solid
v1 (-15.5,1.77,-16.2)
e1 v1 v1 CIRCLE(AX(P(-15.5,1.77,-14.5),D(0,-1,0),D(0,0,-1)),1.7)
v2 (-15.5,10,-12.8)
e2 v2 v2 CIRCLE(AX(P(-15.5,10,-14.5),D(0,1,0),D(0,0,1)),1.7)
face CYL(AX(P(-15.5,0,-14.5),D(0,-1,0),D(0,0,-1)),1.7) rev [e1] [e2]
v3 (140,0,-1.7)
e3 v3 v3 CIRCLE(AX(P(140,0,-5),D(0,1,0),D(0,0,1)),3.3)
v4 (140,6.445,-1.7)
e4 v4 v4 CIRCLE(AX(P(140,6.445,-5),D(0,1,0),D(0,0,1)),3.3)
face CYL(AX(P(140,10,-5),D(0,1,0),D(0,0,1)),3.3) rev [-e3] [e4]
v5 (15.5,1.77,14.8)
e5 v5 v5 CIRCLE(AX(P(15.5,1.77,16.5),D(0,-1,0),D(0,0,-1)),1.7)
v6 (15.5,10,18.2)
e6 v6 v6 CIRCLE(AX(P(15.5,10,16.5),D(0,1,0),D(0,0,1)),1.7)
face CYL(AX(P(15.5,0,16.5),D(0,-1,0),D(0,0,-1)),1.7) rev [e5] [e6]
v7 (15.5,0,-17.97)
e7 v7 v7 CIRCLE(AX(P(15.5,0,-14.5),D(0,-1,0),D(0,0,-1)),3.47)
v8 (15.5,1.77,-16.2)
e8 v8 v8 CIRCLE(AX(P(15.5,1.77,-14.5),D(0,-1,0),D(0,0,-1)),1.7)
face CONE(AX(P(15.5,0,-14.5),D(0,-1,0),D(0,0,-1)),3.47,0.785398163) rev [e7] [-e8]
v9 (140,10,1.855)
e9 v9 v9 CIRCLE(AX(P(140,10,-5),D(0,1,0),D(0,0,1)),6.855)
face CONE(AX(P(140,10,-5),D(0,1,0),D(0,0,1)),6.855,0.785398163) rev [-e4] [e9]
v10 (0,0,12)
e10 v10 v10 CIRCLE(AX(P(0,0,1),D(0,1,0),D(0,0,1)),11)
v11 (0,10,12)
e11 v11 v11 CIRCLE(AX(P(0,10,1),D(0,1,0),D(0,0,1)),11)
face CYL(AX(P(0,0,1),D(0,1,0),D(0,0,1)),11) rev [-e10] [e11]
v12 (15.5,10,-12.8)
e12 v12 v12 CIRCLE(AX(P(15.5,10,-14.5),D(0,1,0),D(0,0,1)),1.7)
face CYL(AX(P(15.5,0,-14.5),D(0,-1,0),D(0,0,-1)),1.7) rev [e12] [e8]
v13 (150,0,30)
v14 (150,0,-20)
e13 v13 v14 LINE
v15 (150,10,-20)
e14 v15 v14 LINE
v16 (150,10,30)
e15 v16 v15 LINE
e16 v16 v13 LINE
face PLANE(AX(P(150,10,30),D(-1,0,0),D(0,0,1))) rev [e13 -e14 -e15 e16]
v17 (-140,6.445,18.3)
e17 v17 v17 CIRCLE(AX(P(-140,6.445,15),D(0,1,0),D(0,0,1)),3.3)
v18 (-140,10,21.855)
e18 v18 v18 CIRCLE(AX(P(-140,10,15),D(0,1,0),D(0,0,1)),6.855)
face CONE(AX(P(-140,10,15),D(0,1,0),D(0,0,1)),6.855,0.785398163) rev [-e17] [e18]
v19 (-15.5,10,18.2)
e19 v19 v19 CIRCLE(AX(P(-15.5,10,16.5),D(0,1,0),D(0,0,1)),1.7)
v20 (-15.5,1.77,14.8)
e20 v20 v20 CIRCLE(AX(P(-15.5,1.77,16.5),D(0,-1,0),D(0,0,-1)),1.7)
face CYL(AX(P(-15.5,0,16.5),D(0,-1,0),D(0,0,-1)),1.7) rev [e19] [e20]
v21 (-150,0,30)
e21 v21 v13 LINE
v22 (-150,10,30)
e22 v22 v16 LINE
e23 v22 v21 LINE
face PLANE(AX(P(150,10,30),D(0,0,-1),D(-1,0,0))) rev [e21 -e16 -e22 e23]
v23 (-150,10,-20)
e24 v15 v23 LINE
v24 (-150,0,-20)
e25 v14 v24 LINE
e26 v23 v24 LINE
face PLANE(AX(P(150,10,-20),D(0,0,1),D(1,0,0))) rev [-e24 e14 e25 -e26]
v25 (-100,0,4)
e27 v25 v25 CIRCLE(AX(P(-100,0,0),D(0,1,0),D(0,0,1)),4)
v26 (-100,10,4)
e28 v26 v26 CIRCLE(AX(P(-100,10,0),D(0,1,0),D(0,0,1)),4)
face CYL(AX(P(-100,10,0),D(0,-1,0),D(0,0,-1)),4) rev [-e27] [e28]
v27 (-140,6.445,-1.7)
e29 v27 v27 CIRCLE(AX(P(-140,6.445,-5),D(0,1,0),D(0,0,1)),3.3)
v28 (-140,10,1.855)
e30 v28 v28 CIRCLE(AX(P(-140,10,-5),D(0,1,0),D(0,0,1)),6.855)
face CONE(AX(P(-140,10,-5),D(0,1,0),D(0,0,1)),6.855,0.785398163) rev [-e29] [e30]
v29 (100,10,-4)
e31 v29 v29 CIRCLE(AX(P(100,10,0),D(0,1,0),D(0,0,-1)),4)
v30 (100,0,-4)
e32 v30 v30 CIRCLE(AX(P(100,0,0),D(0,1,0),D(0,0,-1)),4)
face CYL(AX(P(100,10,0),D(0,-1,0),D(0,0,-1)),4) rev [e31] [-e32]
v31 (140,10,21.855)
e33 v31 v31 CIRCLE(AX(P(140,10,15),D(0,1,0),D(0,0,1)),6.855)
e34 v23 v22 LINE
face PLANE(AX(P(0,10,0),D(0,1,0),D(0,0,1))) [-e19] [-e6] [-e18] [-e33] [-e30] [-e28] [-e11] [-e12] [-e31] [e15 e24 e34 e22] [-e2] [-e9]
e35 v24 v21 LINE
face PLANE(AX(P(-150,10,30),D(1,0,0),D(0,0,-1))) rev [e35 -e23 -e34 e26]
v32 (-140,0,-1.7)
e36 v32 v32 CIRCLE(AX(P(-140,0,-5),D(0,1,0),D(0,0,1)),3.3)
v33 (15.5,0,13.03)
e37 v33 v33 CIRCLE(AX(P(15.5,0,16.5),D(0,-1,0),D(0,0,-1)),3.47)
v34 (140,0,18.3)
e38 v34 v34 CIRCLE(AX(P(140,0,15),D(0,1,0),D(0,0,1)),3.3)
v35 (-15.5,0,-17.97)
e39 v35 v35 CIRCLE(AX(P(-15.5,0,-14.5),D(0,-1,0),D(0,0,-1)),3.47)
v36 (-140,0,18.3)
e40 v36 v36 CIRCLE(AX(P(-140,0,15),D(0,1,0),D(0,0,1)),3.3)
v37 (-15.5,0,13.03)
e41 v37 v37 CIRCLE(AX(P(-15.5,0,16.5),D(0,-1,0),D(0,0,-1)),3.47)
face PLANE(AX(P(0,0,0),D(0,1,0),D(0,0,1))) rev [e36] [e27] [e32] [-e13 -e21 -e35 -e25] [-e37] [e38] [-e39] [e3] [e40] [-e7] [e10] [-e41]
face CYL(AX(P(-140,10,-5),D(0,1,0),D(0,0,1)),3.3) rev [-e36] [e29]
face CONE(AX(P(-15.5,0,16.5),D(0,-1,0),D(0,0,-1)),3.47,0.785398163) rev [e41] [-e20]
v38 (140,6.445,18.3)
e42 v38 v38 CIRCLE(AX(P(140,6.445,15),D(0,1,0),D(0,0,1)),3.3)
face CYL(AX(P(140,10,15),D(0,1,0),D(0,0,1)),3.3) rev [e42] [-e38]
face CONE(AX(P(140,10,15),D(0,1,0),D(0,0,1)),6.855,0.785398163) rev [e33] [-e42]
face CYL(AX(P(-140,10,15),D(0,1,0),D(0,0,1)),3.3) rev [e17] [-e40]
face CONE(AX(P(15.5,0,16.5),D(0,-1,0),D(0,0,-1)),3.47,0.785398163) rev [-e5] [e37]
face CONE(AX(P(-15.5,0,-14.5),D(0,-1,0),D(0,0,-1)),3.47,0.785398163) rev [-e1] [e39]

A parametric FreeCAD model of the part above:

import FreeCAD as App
import Part
import Sketcher

V = App.Vector

doc = App.newDocument("Part")
body = doc.addObject("PartDesign::Body", "Body")

sketch1 = doc.addObject("Sketcher::SketchObject", "Sketch")
body.addObject(sketch1)
sketch1.AttachmentSupport = (doc.XZ_Plane, [""])
sketch1.MapMode = "FlatFace"
sketch1.addGeometry([
    Part.LineSegment(V(-150, -20, 0), V(-150, 30, 0)),
    Part.LineSegment(V(-150, 30, 0), V(150, 30, 0)),
    Part.LineSegment(V(150, 30, 0), V(150, -20, 0)),
    Part.LineSegment(V(150, -20, 0), V(-150, -20, 0)),
    Part.Circle(V(-100, 0, 0), V(0, 0, 1), 4),
    Part.Circle(V(100, 0, 0), V(0, 0, 1), 4),
], False)
sketch1.addConstraint([
    Sketcher.Constraint("Coincident", 0, 2, 1, 1),
    Sketcher.Constraint("Coincident", 1, 2, 2, 1),
    Sketcher.Constraint("Coincident", 2, 2, 3, 1),
    Sketcher.Constraint("Coincident", 3, 2, 0, 1),
    Sketcher.Constraint("Vertical", 0),
    Sketcher.Constraint("Horizontal", 1),
    Sketcher.Constraint("Vertical", 2),
    Sketcher.Constraint("Horizontal", 3),
    Sketcher.Constraint("Equal", 4, 5),
    Sketcher.Constraint("Symmetric", 4, 3, 5, 3, -1, 1),
    Sketcher.Constraint("PointOnObject", 4, 3, -1),
    Sketcher.Constraint("Diameter", 4, 8.0),
    Sketcher.Constraint("DistanceX", 1, 1, 1, 2, 300.0),
    Sketcher.Constraint("DistanceY", 0, 1, 0, 2, 50.0),
    Sketcher.Constraint("DistanceX", 4, 3, -1, 1, 100.0),
    Sketcher.Constraint("DistanceX", 0, 2, -1, 1, 150.0),
    Sketcher.Constraint("DistanceY", -1, 1, 0, 2, 30.0),
])
pad1 = doc.addObject("PartDesign::Pad", "Pad")
body.addObject(pad1)
pad1.Profile = sketch1
pad1.Length = 10
pad1.Reversed = True

sketch2 = doc.addObject("Sketcher::SketchObject", "Sketch001")
body.addObject(sketch2)
sketch2.AttachmentSupport = (doc.XZ_Plane, [""])
sketch2.MapMode = "FlatFace"
sketch2.AttachmentOffset = App.Placement(V(0, 0, -10), App.Rotation())
sketch2.addGeometry([
    Part.Circle(V(-140, -5, 0), V(0, 0, 1), 2.5),
    Part.Circle(V(-140, 15, 0), V(0, 0, 1), 2.5),
    Part.Circle(V(140, 15, 0), V(0, 0, 1), 2.5),
    Part.Circle(V(140, -5, 0), V(0, 0, 1), 2.5),
], False)
sketch2.addConstraint([
    Sketcher.Constraint("Equal", 0, 1),
    Sketcher.Constraint("Equal", 1, 2),
    Sketcher.Constraint("Equal", 2, 3),
    Sketcher.Constraint("Symmetric", 1, 3, 2, 3, -2),
    Sketcher.Constraint("Symmetric", 0, 3, 3, 3, -2),
    Sketcher.Constraint("Vertical", 0, 3, 1, 3),
    Sketcher.Constraint("Diameter", 0, 5.0),
    Sketcher.Constraint("DistanceX", 0, 3, -1, 1, 140.0),
    Sketcher.Constraint("DistanceY", 0, 3, -1, 1, 5.0),
    Sketcher.Constraint("DistanceY", -1, 1, 1, 3, 15.0),
])
pocket1 = doc.addObject("PartDesign::Pocket", "Pocket")
body.addObject(pocket1)
pocket1.Profile = sketch2
pocket1.Type = "ThroughAll"
pocket1.Reversed = True

sketch3 = doc.addObject("Sketcher::SketchObject", "Sketch002")
body.addObject(sketch3)
sketch3.AttachmentSupport = (doc.XZ_Plane, [""])
sketch3.MapMode = "FlatFace"
sketch3.AttachmentOffset = App.Placement(V(0, 0, -10), App.Rotation())
sketch3.addGeometry([
    Part.Circle(V(0, 1, 0), V(0, 0, 1), 11),
    Part.Circle(V(15.5, 16.5, 0), V(0, 0, 1), 1.5),
    Part.Circle(V(-15.5, 16.5, 0), V(0, 0, 1), 1.5),
    Part.Circle(V(-15.5, -14.5, 0), V(0, 0, 1), 1.5),
    Part.Circle(V(15.5, -14.5, 0), V(0, 0, 1), 1.5),
], False)
sketch3.addConstraint([
    Sketcher.Constraint("Equal", 1, 2),
    Sketcher.Constraint("Equal", 2, 3),
    Sketcher.Constraint("Equal", 3, 4),
    Sketcher.Constraint("Symmetric", 1, 3, 2, 3, -2),
    Sketcher.Constraint("Symmetric", 3, 3, 4, 3, -2),
    Sketcher.Constraint("PointOnObject", 0, 3, -2),
    Sketcher.Constraint("Vertical", 2, 3, 3, 3),
    Sketcher.Constraint("Diameter", 0, 22.0),
    Sketcher.Constraint("Diameter", 1, 3.0),
    Sketcher.Constraint("DistanceY", -1, 1, 0, 3, 1.0),
    Sketcher.Constraint("DistanceX", 2, 3, 1, 3, 31.0),
    Sketcher.Constraint("DistanceY", 3, 3, 2, 3, 31.0),
    Sketcher.Constraint("DistanceY", -1, 1, 1, 3, 16.5),
])
pocket2 = doc.addObject("PartDesign::Pocket", "Pocket001")
body.addObject(pocket2)
pocket2.Profile = sketch3
pocket2.Type = "ThroughAll"
pocket2.Reversed = True

sketch4 = doc.addObject("Sketcher::SketchObject", "Sketch003")
body.addObject(sketch4)
sketch4.AttachmentSupport = (doc.XZ_Plane, [""])
sketch4.MapMode = "FlatFace"
sketch4.AttachmentOffset = App.Placement(V(0, 0, -10), App.Rotation())
sketch4.addGeometry([
    Part.Circle(V(140, 15, 0), V(0, 0, 1), 3.3),
    Part.Circle(V(140, -5, 0), V(0, 0, 1), 3.3),
    Part.Circle(V(-140, 15, 0), V(0, 0, 1), 3.3),
    Part.Circle(V(-140, -5, 0), V(0, 0, 1), 3.3),
], False)
sketch4.addConstraint([
    Sketcher.Constraint("Equal", 0, 1),
    Sketcher.Constraint("Equal", 1, 2),
    Sketcher.Constraint("Equal", 2, 3),
    Sketcher.Constraint("Symmetric", 0, 3, 2, 3, -2),
    Sketcher.Constraint("Symmetric", 1, 3, 3, 3, -2),
    Sketcher.Constraint("Vertical", 0, 3, 1, 3),
    Sketcher.Constraint("Diameter", 0, 6.6),
    Sketcher.Constraint("DistanceX", -1, 1, 0, 3, 140.0),
    Sketcher.Constraint("DistanceY", -1, 1, 0, 3, 15.0),
    Sketcher.Constraint("DistanceY", 1, 3, -1, 1, 5.0),
])
doc.recompute()
hole = doc.addObject("PartDesign::Hole", "Hole")
body.addObject(hole)
hole.Profile = sketch4
hole.ThreadType = "None"
hole.Diameter = 6.6
hole.DepthType = "Dimension"
hole.Depth = 15
hole.DrillPoint = "Angled"
hole.DrillPointAngle = 118
hole.HoleCutType = "Countersink"
hole.HoleCutDiameter = 13.71
hole.HoleCutCountersinkAngle = 90
hole.Reversed = True

sketch5 = doc.addObject("Sketcher::SketchObject", "Sketch004")
body.addObject(sketch5)
sketch5.AttachmentSupport = (doc.XZ_Plane, [""])
sketch5.MapMode = "FlatFace"
sketch5.addGeometry([
    Part.Circle(V(-15.5, 16.5, 0), V(0, 0, 1), 1.7),
    Part.Circle(V(15.5, 16.5, 0), V(0, 0, 1), 1.7),
    Part.Circle(V(15.5, -14.5, 0), V(0, 0, 1), 1.7),
    Part.Circle(V(-15.5, -14.5, 0), V(0, 0, 1), 1.7),
], False)
sketch5.addConstraint([
    Sketcher.Constraint("Equal", 0, 1),
    Sketcher.Constraint("Equal", 1, 2),
    Sketcher.Constraint("Equal", 2, 3),
    Sketcher.Constraint("Symmetric", 0, 3, 1, 3, -2),
    Sketcher.Constraint("Symmetric", 2, 3, 3, 3, -2),
    Sketcher.Constraint("Vertical", 1, 3, 2, 3),
    Sketcher.Constraint("Diameter", 0, 3.4),
    Sketcher.Constraint("DistanceX", 0, 3, 1, 3, 31.0),
    Sketcher.Constraint("DistanceY", 2, 3, 1, 3, 31.0),
    Sketcher.Constraint("DistanceY", -1, 1, 0, 3, 16.5),
])
doc.recompute()
hole2 = doc.addObject("PartDesign::Hole", "Hole001")
body.addObject(hole2)
hole2.Profile = sketch5
hole2.ThreadType = "None"
hole2.Diameter = 3.4
hole2.DepthType = "Dimension"
hole2.Depth = 15
hole2.DrillPoint = "Angled"
hole2.DrillPointAngle = 118
hole2.HoleCutType = "Countersink"
hole2.HoleCutDiameter = 6.94
hole2.HoleCutCountersinkAngle = 90

doc.recompute()
